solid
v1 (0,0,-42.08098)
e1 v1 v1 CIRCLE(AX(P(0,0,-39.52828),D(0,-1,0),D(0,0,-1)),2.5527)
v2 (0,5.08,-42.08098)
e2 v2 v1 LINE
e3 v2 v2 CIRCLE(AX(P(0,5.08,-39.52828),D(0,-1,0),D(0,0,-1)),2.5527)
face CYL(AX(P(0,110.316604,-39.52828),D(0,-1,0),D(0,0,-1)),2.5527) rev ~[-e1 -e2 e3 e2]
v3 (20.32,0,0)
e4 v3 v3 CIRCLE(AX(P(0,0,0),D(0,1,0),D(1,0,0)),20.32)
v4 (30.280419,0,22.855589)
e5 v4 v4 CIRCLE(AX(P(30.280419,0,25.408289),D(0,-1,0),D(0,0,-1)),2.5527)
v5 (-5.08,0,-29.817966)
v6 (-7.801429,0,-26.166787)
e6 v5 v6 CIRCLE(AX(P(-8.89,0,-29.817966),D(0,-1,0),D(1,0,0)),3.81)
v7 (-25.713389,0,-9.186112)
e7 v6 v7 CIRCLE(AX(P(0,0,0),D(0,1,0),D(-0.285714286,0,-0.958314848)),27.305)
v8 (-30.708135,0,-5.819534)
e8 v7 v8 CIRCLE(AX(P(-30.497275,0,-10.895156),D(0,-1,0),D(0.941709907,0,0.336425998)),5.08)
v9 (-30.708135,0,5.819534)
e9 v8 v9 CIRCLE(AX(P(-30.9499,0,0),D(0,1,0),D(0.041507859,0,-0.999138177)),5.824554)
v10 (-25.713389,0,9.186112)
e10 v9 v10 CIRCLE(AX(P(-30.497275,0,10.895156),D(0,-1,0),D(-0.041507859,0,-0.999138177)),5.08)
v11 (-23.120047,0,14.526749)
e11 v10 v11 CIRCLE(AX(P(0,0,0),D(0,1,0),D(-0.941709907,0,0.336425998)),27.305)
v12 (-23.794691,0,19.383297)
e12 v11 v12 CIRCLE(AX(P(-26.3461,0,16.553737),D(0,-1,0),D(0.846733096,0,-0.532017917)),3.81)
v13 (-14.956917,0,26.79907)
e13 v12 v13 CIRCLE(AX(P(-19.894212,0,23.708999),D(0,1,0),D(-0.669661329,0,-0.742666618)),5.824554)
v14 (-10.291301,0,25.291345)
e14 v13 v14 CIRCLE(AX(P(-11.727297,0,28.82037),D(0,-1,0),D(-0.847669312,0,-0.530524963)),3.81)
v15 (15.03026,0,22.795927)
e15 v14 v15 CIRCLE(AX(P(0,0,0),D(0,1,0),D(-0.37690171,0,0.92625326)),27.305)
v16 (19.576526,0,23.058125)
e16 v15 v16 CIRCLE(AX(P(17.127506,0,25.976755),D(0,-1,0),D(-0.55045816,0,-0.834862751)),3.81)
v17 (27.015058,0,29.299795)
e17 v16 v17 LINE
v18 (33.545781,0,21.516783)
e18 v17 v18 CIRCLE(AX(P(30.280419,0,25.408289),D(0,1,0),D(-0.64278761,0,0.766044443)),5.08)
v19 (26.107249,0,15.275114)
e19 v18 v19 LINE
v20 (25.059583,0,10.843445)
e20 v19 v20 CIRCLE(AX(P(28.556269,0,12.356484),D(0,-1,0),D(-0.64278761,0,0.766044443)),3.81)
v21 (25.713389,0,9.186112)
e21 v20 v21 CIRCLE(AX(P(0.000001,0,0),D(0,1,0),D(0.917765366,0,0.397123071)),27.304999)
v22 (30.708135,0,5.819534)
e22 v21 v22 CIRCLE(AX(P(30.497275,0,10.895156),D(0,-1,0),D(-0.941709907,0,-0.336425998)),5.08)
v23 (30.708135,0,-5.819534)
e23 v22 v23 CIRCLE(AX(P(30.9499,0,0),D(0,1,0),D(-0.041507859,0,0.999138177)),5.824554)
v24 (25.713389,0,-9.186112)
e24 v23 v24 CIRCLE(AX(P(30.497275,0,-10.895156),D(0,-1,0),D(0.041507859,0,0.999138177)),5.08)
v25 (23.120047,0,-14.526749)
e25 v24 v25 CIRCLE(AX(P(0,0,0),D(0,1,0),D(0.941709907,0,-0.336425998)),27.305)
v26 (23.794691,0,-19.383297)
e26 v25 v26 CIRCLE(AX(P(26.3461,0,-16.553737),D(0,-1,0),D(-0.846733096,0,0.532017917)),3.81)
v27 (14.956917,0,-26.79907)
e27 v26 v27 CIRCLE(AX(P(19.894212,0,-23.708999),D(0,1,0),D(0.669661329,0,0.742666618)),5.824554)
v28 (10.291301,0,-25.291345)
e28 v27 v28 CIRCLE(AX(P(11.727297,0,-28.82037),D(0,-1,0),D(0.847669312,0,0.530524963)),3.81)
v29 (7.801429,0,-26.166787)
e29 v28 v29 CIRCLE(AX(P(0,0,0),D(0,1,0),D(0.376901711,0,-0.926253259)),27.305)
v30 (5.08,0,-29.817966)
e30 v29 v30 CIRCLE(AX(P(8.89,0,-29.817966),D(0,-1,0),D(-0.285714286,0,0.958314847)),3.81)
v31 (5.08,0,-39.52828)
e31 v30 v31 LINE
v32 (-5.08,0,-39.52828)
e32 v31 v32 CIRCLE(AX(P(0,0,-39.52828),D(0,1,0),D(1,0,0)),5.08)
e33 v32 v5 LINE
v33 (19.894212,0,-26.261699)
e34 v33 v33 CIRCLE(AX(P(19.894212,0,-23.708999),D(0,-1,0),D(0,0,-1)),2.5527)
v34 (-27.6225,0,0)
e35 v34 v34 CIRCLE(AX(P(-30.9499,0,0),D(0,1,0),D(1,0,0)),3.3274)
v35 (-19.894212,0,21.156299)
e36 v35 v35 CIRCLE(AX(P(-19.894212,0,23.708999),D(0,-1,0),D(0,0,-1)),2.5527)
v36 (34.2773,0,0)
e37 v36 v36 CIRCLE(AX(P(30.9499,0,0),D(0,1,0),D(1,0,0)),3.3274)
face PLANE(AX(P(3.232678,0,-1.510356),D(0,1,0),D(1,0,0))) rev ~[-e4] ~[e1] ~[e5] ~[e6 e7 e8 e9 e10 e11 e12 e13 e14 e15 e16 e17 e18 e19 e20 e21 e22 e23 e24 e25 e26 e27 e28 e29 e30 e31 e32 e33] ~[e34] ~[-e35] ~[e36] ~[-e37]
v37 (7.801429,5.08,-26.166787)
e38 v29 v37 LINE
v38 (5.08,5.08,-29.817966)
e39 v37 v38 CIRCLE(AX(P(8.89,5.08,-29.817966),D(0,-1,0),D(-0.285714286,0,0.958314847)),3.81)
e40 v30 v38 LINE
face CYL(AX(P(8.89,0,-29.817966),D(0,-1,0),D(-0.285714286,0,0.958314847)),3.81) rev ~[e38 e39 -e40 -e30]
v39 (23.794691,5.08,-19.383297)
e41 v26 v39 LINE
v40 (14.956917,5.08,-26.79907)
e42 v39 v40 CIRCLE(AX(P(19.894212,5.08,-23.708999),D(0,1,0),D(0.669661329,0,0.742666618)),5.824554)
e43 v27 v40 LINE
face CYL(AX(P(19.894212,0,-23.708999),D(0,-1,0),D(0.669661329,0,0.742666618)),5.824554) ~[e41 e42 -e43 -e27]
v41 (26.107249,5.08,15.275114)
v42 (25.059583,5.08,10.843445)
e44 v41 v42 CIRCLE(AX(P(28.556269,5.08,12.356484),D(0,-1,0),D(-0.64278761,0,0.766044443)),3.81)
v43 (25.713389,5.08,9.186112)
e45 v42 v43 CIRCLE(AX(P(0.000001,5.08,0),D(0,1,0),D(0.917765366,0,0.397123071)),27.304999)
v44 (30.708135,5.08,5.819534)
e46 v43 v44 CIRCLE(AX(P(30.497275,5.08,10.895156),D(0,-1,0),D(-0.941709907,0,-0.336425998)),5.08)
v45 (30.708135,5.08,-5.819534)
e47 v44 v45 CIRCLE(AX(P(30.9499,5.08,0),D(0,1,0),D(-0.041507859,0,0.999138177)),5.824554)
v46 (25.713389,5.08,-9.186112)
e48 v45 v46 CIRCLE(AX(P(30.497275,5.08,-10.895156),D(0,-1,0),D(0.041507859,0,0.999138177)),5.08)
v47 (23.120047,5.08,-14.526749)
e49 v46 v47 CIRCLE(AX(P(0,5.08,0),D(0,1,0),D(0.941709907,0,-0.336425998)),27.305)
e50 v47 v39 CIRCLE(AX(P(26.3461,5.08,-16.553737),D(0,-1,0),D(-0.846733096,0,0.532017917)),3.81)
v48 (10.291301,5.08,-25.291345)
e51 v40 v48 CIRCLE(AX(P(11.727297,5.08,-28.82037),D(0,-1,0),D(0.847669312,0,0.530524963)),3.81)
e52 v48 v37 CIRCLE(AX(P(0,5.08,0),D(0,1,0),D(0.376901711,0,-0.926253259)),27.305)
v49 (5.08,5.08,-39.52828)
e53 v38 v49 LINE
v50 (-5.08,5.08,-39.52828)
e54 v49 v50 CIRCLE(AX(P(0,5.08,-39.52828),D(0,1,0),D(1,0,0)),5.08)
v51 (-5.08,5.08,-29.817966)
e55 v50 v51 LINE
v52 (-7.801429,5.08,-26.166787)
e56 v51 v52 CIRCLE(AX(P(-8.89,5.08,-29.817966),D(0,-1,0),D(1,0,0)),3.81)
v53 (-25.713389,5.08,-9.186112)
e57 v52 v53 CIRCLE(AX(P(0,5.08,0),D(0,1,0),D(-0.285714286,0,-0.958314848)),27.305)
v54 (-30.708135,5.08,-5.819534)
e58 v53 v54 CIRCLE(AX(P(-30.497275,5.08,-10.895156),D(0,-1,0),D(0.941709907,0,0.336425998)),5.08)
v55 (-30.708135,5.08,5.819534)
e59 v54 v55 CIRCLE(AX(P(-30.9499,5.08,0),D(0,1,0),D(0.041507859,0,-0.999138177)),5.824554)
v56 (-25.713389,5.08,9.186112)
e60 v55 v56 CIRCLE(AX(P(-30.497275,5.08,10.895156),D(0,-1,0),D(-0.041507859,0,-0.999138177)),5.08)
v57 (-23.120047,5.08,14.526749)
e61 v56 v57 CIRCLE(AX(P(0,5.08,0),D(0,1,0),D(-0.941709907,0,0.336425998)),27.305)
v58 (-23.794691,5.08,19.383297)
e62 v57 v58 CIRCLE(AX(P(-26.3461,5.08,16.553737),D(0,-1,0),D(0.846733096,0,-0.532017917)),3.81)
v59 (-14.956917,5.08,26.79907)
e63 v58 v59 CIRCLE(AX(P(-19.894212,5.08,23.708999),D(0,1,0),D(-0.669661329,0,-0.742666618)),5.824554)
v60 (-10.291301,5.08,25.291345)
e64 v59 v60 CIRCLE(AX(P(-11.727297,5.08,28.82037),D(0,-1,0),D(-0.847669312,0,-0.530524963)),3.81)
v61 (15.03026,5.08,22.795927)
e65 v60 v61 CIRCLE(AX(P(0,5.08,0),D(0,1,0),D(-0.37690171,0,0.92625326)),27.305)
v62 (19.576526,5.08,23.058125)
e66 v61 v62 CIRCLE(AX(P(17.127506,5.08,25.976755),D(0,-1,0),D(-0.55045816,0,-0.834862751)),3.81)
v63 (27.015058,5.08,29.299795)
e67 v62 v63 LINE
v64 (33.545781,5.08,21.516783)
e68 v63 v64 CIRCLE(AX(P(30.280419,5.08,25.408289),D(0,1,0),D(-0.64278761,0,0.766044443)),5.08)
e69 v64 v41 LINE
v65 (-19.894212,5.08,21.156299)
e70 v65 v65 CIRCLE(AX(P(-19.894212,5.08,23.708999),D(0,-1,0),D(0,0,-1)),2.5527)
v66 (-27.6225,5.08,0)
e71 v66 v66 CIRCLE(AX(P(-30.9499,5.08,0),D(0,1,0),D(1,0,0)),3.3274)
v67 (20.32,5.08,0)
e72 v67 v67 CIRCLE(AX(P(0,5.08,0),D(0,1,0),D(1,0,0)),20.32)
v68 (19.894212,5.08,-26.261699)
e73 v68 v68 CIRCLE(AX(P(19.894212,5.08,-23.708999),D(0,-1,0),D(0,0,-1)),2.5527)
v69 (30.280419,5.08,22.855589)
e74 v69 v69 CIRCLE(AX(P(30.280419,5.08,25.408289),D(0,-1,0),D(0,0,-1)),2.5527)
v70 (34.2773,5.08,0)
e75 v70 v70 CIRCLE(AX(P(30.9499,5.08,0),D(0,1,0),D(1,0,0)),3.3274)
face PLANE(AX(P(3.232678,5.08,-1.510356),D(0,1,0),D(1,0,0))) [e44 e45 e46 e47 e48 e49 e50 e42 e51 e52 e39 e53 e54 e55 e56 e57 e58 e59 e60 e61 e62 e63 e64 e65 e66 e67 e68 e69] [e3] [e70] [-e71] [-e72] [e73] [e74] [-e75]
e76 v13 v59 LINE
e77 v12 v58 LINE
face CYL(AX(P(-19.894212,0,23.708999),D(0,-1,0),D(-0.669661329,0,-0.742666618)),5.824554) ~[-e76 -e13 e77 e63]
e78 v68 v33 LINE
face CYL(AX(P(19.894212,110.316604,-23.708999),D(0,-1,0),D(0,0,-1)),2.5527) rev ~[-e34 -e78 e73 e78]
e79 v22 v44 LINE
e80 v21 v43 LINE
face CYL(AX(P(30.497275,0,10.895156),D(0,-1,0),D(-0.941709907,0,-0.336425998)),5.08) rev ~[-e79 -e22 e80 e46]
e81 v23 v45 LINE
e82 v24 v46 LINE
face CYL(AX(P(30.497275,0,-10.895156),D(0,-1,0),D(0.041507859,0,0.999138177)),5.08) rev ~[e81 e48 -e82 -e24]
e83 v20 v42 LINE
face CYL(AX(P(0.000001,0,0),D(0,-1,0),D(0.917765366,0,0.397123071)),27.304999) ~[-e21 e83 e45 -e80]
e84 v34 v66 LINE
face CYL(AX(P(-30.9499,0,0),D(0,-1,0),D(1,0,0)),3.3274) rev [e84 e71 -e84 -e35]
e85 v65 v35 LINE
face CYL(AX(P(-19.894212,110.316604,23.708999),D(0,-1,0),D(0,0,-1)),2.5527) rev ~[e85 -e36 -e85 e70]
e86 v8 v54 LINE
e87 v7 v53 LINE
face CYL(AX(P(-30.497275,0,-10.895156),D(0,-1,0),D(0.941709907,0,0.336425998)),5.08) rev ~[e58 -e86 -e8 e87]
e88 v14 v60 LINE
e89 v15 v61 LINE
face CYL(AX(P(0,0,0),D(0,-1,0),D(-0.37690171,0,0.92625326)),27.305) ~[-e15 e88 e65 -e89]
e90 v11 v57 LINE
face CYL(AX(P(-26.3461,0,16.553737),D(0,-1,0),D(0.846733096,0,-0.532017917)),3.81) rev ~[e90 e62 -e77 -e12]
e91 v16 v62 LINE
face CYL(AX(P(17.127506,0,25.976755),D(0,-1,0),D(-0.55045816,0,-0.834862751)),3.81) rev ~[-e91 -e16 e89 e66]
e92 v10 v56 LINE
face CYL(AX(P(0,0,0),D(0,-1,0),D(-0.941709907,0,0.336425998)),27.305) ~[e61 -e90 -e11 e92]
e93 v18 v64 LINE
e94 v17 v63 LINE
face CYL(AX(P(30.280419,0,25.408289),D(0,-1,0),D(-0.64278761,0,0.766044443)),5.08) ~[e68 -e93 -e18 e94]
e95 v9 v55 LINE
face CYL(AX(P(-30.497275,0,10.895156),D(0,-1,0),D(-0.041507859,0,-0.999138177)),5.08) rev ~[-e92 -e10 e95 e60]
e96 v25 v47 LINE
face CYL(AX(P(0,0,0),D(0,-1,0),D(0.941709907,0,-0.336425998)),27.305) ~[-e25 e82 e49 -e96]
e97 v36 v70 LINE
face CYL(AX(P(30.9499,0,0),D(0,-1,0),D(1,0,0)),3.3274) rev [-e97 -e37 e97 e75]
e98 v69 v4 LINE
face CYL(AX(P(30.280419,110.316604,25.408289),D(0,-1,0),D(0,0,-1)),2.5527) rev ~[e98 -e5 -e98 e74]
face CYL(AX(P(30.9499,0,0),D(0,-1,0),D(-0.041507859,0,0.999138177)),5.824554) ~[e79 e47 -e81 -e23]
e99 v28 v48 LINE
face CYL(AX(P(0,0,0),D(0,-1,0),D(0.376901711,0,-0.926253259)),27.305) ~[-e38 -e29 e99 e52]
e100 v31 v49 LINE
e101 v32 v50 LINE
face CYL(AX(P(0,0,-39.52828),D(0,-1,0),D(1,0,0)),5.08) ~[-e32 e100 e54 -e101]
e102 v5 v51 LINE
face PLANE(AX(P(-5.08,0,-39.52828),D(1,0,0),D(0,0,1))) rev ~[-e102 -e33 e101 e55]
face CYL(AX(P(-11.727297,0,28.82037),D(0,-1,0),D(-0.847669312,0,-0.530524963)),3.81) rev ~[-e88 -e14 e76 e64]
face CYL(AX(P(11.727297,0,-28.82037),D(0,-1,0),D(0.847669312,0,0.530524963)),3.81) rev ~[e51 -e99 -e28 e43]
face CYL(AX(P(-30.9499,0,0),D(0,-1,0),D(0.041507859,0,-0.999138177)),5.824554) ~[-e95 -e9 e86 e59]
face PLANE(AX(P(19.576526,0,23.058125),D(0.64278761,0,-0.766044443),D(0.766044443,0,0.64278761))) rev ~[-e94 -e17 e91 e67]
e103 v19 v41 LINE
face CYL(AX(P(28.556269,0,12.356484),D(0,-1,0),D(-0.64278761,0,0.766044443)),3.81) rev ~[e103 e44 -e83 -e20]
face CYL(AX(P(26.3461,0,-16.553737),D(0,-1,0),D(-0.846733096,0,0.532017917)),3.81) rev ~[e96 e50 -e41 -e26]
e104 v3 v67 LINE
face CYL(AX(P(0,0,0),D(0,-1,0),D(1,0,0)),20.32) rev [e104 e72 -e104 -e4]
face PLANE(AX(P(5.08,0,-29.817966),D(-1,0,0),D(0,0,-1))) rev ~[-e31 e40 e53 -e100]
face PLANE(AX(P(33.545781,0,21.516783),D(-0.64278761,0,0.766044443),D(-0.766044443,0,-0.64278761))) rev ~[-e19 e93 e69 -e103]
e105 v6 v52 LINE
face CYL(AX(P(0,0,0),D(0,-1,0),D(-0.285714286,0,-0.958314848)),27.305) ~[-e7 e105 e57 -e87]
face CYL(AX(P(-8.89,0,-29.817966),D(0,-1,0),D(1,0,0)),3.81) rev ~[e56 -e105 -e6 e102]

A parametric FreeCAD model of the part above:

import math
import FreeCAD as App
import Part
import Sketcher

V = App.Vector
Q = App.Units.Quantity

doc = App.newDocument("Part")
body = doc.addObject("PartDesign::Body", "Body")

# Sketch on XZ plane
sketch1 = body.newObject("Sketcher::SketchObject", "Sketch")
sketch1.AttachmentSupport = (doc.getObject("XZ_Plane"), [""])
sketch1.MapMode = "FlatFace"
sketch1.addGeometry([
    Part.LineSegment(V(19.6, 23.1, 0), V(27, 29.3, 0)),  # 0
    Part.ArcOfCircle(Part.Circle(V(30.3, 25.4, 0), V(0, 0, 1), 5.1), math.radians(-50), math.radians(130)),  # 1
    Part.LineSegment(V(33.5, 21.5, 0), V(26.1, 15.3, 0)),  # 2
    Part.ArcOfCircle(Part.Circle(V(28.6, 12.4, 0), V(0, 0, 1), 3.8), math.radians(130), math.radians(203)),  # 3
    Part.ArcOfCircle(Part.Circle(V(0, 0, 0), V(0, 0, 1), 27.3), math.radians(19.66), math.radians(23.4)),  # 4
    Part.ArcOfCircle(Part.Circle(V(30.5, 10.9, 0), V(0, 0, 1), 5.1), math.radians(-160), math.radians(-88)),  # 5
    Part.ArcOfCircle(Part.Circle(V(30.9, 0, 0), V(0, 0, 1), 5.8), math.radians(-92), math.radians(92)),  # 6
    Part.ArcOfCircle(Part.Circle(V(30.5, -10.9, 0), V(0, 0, 1), 5.1), math.radians(88), math.radians(160)),  # 7
    Part.ArcOfCircle(Part.Circle(V(0, 0, 0), V(0, 0, 1), 27.3), math.radians(-32.14), math.radians(-19.66)),  # 8
    Part.ArcOfCircle(Part.Circle(V(26.3, -16.6, 0), V(0, 0, 1), 3.8), math.radians(148), math.radians(228)),  # 9
    Part.ArcOfCircle(Part.Circle(V(19.9, -23.7, 0), V(0, 0, 1), 5.8), math.radians(-148), math.radians(48)),  # 10
    Part.ArcOfCircle(Part.Circle(V(11.7, -28.8, 0), V(0, 0, 1), 3.8), math.radians(32), math.radians(112)),  # 11
    Part.ArcOfCircle(Part.Circle(V(0, 0, 0), V(0, 0, 1), 27.3), math.radians(-73.4), math.radians(-67.86)),  # 12
    Part.ArcOfCircle(Part.Circle(V(8.9, -29.8, 0), V(0, 0, 1), 3.8), math.radians(107), math.radians(180)),  # 13
    Part.LineSegment(V(5.1, -29.8, 0), V(5.1, -39.5, 0)),  # 14
    Part.ArcOfCircle(Part.Circle(V(0, -39.5, 0), V(0, 0, 1), 5.1), math.radians(180), math.radians(360)),  # 15
    Part.LineSegment(V(-5.1, -39.5, 0), V(-5.1, -29.8, 0)),  # 16
    Part.ArcOfCircle(Part.Circle(V(-8.9, -29.8, 0), V(0, 0, 1), 3.8), math.radians(0), math.radians(73)),  # 17
    Part.ArcOfCircle(Part.Circle(V(0, 0, 0), V(0, 0, 1), 27.3), math.radians(-160), math.radians(-107)),  # 18
    Part.ArcOfCircle(Part.Circle(V(-30.5, -10.9, 0), V(0, 0, 1), 5.1), math.radians(20), math.radians(92)),  # 19
    Part.ArcOfCircle(Part.Circle(V(-30.9, 0, 0), V(0, 0, 1), 5.8), math.radians(88), math.radians(272)),  # 20
    Part.ArcOfCircle(Part.Circle(V(-30.5, 10.9, 0), V(0, 0, 1), 5.1), math.radians(-92), math.radians(-20)),  # 21
    Part.ArcOfCircle(Part.Circle(V(0, 0, 0), V(0, 0, 1), 27.3), math.radians(147.86), math.radians(160.34)),  # 22
    Part.ArcOfCircle(Part.Circle(V(-26.3, 16.6, 0), V(0, 0, 1), 3.8), math.radians(-32), math.radians(48)),  # 23
    Part.ArcOfCircle(Part.Circle(V(-19.9, 23.7, 0), V(0, 0, 1), 5.8), math.radians(32), math.radians(228)),  # 24
    Part.ArcOfCircle(Part.Circle(V(-11.7, 28.8, 0), V(0, 0, 1), 3.8), math.radians(-148), math.radians(-68)),  # 25
    Part.ArcOfCircle(Part.Circle(V(0, 0, 0), V(0, 0, 1), 27.3), math.radians(57), math.radians(112)),  # 26
    Part.ArcOfCircle(Part.Circle(V(17.1, 26, 0), V(0, 0, 1), 3.8), math.radians(-123), math.radians(-50)),  # 27
    Part.Circle(V(-30.9, 0, 0), V(0, 0, 1), 3.3),  # 28
    Part.Circle(V(0, 0, 0), V(0, 0, 1), 20.3),  # 29
    Part.Circle(V(30.9, 0, 0), V(0, 0, 1), 3.3),  # 30
], False)
sketch1.addConstraint([
    Sketcher.Constraint("Tangent", 0, 2, 1, 2),
    Sketcher.Constraint("Tangent", 1, 1, 2, 1),
    Sketcher.Constraint("Tangent", 2, 2, 3, 1),
    Sketcher.Constraint("Tangent", 3, 2, 4, 2),
    Sketcher.Constraint("Tangent", 4, 1, 5, 1),
    Sketcher.Constraint("Tangent", 5, 2, 6, 2),
    Sketcher.Constraint("Tangent", 6, 1, 7, 1),
    Sketcher.Constraint("Tangent", 7, 2, 8, 2),
    Sketcher.Constraint("Tangent", 8, 1, 9, 1),
    Sketcher.Constraint("Tangent", 9, 2, 10, 2),
    Sketcher.Constraint("Tangent", 10, 1, 11, 1),
    Sketcher.Constraint("Tangent", 11, 2, 12, 2),
    Sketcher.Constraint("Tangent", 12, 1, 13, 1),
    Sketcher.Constraint("Tangent", 13, 2, 14, 1),
    Sketcher.Constraint("Tangent", 14, 2, 15, 2),
    Sketcher.Constraint("Tangent", 15, 1, 16, 1),
    Sketcher.Constraint("Tangent", 16, 2, 17, 1),
    Sketcher.Constraint("Tangent", 17, 2, 18, 2),
    Sketcher.Constraint("Tangent", 18, 1, 19, 1),
    Sketcher.Constraint("Tangent", 19, 2, 20, 2),
    Sketcher.Constraint("Tangent", 20, 1, 21, 1),
    Sketcher.Constraint("Tangent", 21, 2, 22, 2),
    Sketcher.Constraint("Tangent", 22, 1, 23, 1),
    Sketcher.Constraint("Tangent", 23, 2, 24, 2),
    Sketcher.Constraint("Tangent", 24, 1, 25, 1),
    Sketcher.Constraint("Tangent", 25, 2, 26, 2),
    Sketcher.Constraint("Tangent", 26, 1, 27, 1),
    Sketcher.Constraint("Tangent", 27, 2, 0, 1),
    Sketcher.Constraint("Vertical", 14),
    Sketcher.Constraint("Vertical", 16),
    Sketcher.Constraint("Coincident", 4, 3, -1, 1),
    Sketcher.Constraint("Coincident", 8, 3, -1, 1),
    Sketcher.Constraint("Coincident", 12, 3, -1, 1),
    Sketcher.Constraint("Coincident", 18, 3, -1, 1),
    Sketcher.Constraint("Coincident", 22, 3, -1, 1),
    Sketcher.Constraint("Coincident", 26, 3, -1, 1),
    Sketcher.Constraint("Coincident", 29, 3, -1, 1),
    Sketcher.Constraint("Coincident", 28, 3, 20, 3),
    Sketcher.Constraint("Coincident", 30, 3, 6, 3),
    Sketcher.Constraint("Equal", 1, 5),
    Sketcher.Constraint("Equal", 5, 7),
    Sketcher.Constraint("Equal", 4, 8),
    Sketcher.Constraint("Equal", 3, 9),
    Sketcher.Constraint("Equal", 6, 10),
    Sketcher.Constraint("Equal", 9, 11),
    Sketcher.Constraint("Equal", 8, 12),
    Sketcher.Constraint("Equal", 11, 13),
    Sketcher.Constraint("Equal", 7, 15),
    Sketcher.Constraint("Equal", 13, 17),
    Sketcher.Constraint("Equal", 12, 18),
    Sketcher.Constraint("Equal", 15, 19),
    Sketcher.Constraint("Equal", 10, 20),
    Sketcher.Constraint("Equal", 19, 21),
    Sketcher.Constraint("Equal", 18, 22),
    Sketcher.Constraint("Equal", 17, 23),
    Sketcher.Constraint("Equal", 20, 24),
    Sketcher.Constraint("Equal", 23, 25),
    Sketcher.Constraint("Equal", 22, 26),
    Sketcher.Constraint("Equal", 25, 27),
    Sketcher.Constraint("Equal", 28, 30),
    Sketcher.Constraint("Symmetric", 6, 3, 20, 3, -1, 1),
    Sketcher.Constraint("Symmetric", 10, 3, 24, 3, -1, 1),
    Sketcher.Constraint("PointOnObject", 6, 3, -1),
    Sketcher.Constraint("PointOnObject", 15, 3, -2),
    Sketcher.Constraint("Parallel", 0, 2),
    Sketcher.Constraint("Equal", 0, 2),
    Sketcher.Constraint("Diameter", 29, Q("1.6 in")),
    Sketcher.Constraint("Radius", 1, Q("0.2 in")),
    Sketcher.Constraint("Radius", 3, Q("0.15 in")),
    Sketcher.Constraint("Diameter", 28, Q("0.262 in")),
    Sketcher.Constraint("Angle", 0, Q("40 deg")),
    Sketcher.Constraint("Radius", 4, Q("1.075 in")),
    Sketcher.Constraint("DistanceX", -1, 1, 6, 3, Q("1.2185 in")),
    Sketcher.Constraint("DistanceX", -1, 1, 1, 1, Q("1.3207 in")),
    Sketcher.Constraint("Radius", 6, Q("5.824554 mm")),
    Sketcher.Constraint("DistanceX", 8, 1, 7, 2, Q("0.1021001 in")),
    Sketcher.Constraint("DistanceY", 9, 2, 9, 3, Q("0.1114 in")),
    Sketcher.Constraint("DistanceY", 14, 2, 14, 1, Q("9.710314 mm")),
])
pad1 = body.newObject("PartDesign::Pad", "Pad")
pad1.Profile = sketch1
pad1.Length = Q("0.2 in")
pad1.Reversed = True

# Sketch on XZ plane
sketch2 = body.newObject("Sketcher::SketchObject", "Sketch001")
sketch2.AttachmentSupport = (doc.getObject("XZ_Plane"), [""])
sketch2.MapMode = "FlatFace"
sketch2.AttachmentOffset = App.Placement(V(0, 0, -0.2 * 25.4), App.Rotation())
sketch2.addGeometry([
    Part.Circle(V(0, -39.5, 0), V(0, 0, 1), 2.6),
    Part.Circle(V(19.9, -23.7, 0), V(0, 0, 1), 2.6),
    Part.Circle(V(30.3, 25.4, 0), V(0, 0, 1), 2.6),
    Part.Circle(V(-19.9, 23.7, 0), V(0, 0, 1), 2.6),
], False)
sketch2.addConstraint([
    Sketcher.Constraint("Equal", 0, 1),
    Sketcher.Constraint("Equal", 1, 2),
    Sketcher.Constraint("Equal", 2, 3),
    Sketcher.Constraint("Symmetric", 1, 3, 3, 3, -1, 1),
    Sketcher.Constraint("PointOnObject", 0, 3, -2),
    Sketcher.Constraint("Diameter", 0, Q("0.201 in")),
    Sketcher.Constraint("DistanceY", 1, 3, -1, 1, Q("23.708999 mm")),
    Sketcher.Constraint("DistanceY", 0, 3, -1, 1, Q("39.52828 mm")),
    Sketcher.Constraint("DistanceX", -1, 1, 2, 3, Q("30.280419 mm")),
    Sketcher.Constraint("DistanceY", -1, 1, 2, 3, Q("25.408289 mm")),
    Sketcher.Constraint("DistanceX", 3, 3, 2, 3, Q("50.174632 mm")),
])
doc.recompute()
hole = body.newObject("PartDesign::Hole", "Hole")
hole.Profile = sketch2
hole.ThreadType = "None"
hole.Diameter = Q("0.201 in")
hole.DepthType = "ThroughAll"
hole.Reversed = True

doc.recompute()
